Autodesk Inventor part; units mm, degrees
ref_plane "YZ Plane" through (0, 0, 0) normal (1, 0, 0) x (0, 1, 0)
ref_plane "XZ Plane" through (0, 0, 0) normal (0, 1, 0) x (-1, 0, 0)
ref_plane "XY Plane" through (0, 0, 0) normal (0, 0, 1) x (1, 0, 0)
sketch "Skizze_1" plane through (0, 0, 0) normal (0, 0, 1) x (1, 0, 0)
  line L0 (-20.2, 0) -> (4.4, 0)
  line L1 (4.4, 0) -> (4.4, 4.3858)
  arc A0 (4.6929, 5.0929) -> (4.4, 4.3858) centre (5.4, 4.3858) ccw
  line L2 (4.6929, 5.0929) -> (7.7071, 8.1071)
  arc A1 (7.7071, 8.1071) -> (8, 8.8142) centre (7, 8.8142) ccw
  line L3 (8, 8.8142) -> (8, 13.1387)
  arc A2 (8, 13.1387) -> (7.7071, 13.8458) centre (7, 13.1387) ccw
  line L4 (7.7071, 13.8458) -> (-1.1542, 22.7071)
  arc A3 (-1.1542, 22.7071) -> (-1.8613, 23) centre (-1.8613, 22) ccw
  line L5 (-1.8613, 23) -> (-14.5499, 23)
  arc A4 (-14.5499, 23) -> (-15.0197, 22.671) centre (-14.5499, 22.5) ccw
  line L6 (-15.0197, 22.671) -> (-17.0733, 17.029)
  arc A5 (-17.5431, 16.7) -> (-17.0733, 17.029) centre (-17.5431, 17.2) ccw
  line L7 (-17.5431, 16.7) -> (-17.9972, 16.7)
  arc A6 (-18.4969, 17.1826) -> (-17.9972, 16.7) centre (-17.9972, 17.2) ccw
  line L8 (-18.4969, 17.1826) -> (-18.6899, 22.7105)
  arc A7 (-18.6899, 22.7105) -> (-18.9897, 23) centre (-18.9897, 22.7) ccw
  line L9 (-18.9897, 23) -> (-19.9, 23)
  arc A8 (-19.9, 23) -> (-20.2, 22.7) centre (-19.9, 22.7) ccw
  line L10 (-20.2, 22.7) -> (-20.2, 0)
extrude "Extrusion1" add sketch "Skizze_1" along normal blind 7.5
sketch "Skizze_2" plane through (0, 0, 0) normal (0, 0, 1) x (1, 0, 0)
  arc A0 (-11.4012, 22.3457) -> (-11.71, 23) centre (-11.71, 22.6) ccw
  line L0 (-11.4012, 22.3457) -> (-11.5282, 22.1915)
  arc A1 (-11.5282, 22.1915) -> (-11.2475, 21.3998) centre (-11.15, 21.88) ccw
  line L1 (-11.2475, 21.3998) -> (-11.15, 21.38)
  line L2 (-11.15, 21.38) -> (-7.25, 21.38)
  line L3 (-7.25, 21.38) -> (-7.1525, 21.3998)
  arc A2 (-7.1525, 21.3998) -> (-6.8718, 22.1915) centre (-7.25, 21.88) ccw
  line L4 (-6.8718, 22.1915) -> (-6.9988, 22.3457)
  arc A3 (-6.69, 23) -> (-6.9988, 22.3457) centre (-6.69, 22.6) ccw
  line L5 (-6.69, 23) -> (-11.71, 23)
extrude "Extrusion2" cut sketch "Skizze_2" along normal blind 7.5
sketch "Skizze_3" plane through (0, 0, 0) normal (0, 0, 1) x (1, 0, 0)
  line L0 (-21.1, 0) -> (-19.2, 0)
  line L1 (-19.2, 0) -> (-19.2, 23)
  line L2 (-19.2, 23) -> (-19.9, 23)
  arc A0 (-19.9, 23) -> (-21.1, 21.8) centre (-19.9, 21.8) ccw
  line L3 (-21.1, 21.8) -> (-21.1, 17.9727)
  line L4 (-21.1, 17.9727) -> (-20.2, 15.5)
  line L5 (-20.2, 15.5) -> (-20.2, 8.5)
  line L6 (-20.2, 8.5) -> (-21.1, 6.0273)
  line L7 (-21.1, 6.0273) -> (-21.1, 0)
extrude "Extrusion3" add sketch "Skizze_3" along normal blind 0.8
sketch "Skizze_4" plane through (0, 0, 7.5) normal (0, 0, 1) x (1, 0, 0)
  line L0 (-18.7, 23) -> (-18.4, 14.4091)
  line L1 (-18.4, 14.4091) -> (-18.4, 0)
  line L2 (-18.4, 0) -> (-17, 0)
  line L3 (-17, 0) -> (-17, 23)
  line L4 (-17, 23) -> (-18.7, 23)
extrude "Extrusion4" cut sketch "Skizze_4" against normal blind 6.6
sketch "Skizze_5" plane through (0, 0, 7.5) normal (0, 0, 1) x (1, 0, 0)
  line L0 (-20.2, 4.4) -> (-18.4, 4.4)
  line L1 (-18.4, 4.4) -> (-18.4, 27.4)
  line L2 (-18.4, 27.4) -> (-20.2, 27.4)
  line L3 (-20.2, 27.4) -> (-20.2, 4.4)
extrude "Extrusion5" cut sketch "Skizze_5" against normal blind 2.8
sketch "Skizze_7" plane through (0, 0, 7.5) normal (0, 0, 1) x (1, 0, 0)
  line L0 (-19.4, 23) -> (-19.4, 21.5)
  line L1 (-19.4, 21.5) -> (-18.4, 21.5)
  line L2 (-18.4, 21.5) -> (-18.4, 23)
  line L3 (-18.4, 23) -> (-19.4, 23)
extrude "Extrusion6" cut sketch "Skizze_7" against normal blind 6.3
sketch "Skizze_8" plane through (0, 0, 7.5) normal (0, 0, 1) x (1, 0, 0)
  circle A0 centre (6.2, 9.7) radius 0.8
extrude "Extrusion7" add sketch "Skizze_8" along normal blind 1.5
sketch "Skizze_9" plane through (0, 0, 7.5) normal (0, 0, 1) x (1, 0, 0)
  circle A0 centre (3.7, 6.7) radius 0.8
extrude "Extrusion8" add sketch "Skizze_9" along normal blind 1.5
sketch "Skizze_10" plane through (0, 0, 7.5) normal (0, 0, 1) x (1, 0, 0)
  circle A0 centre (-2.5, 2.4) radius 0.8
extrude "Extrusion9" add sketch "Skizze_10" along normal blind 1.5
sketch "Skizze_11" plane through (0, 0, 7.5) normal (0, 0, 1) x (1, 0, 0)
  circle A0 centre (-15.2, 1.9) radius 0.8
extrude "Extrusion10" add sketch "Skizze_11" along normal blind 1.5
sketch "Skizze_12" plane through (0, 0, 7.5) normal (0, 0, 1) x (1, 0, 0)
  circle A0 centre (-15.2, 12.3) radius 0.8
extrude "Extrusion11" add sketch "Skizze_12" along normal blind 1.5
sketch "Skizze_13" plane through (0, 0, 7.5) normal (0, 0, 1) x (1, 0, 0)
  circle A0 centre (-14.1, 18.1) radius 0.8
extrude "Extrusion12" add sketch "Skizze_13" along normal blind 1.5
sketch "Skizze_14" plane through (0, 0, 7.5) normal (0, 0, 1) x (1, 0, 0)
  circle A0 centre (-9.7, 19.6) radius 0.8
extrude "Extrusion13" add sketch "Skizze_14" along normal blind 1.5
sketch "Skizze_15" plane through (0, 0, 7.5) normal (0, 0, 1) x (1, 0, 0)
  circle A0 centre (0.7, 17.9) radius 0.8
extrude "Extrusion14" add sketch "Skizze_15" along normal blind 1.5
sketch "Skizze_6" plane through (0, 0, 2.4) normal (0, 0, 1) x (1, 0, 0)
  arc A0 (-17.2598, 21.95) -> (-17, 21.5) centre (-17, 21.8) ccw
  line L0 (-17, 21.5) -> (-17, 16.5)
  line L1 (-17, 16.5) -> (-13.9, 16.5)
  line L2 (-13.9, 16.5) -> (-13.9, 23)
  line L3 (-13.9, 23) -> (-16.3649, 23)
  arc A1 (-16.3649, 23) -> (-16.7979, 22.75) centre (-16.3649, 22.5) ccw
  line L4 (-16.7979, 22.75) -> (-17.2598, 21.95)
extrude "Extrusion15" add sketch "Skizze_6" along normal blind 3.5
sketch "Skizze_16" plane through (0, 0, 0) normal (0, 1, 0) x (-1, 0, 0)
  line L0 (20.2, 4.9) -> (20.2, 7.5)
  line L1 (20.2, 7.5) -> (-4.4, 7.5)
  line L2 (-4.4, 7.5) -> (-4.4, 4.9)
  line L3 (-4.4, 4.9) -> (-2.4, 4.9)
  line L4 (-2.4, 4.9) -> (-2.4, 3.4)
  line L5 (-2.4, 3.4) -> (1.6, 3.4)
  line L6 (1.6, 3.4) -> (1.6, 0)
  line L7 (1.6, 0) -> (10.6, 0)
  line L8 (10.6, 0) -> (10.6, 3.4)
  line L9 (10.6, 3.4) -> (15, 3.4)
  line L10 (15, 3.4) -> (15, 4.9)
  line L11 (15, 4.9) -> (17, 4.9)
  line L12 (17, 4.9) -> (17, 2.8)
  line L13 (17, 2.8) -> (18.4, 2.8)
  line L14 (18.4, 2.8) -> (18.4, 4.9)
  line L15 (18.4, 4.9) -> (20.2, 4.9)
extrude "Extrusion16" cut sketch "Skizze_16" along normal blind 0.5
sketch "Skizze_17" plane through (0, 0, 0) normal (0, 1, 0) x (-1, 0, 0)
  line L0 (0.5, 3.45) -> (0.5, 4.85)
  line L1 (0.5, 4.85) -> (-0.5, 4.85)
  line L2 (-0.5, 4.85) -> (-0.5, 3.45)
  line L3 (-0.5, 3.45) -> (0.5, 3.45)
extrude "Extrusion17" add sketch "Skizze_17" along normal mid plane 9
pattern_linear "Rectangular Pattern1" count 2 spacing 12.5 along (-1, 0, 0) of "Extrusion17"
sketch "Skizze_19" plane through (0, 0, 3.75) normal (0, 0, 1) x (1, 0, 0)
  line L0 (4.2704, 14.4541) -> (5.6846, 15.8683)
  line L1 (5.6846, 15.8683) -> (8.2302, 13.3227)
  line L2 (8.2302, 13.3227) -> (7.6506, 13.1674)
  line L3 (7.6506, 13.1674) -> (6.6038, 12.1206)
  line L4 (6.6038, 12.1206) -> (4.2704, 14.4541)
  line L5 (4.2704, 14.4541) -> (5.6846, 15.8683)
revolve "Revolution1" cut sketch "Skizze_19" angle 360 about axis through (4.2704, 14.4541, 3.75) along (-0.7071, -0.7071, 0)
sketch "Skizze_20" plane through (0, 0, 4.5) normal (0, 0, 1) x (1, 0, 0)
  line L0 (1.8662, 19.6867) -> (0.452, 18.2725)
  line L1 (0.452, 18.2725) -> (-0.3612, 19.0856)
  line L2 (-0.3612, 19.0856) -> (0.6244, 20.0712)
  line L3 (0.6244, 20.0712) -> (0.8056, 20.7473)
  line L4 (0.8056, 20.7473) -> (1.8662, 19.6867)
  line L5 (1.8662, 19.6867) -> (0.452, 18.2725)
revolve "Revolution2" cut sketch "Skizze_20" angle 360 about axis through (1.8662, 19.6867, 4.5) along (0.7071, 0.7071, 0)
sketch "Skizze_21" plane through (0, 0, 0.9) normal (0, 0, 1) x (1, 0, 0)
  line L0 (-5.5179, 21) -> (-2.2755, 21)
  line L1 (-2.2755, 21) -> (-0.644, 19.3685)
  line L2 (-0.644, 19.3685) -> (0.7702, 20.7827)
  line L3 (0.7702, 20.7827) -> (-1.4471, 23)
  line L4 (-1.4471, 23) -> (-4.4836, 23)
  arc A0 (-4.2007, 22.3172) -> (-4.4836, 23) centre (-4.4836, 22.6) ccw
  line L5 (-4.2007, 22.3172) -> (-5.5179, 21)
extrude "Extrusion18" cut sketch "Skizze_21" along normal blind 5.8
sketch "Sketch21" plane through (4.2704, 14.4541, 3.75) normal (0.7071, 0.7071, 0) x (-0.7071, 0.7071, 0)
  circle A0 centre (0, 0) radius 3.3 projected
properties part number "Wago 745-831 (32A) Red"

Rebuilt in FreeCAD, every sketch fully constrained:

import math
import FreeCAD as App
import Part
import Sketcher
from FreeCAD import Vector
Q = App.Units.Quantity


def add_polygon(sketch, points):
    """Adds a closed chain of lines whose ends are joined by coincident constraints."""
    first, n = sketch.GeometryCount, len(points)
    for a, b in zip(points, points[1:] + points[:1]):
        sketch.addGeometry(Part.LineSegment(App.Vector(*a, 0), App.Vector(*b, 0)), False)
    for i in range(n):
        sketch.addConstraint(Sketcher.Constraint("Coincident", first + i, 2, first + (i + 1) % n, 1))

doc = App.newDocument("Part")
body = doc.addObject("PartDesign::Body", "Body")

# Sketch on XY plane
sketch1 = doc.addObject("Sketcher::SketchObject", "Sketch")
body.addObject(sketch1)
sketch1.AttachmentSupport = (doc.XY_Plane, [""])
sketch1.MapMode = "FlatFace"
sketch1.addGeometry(Part.LineSegment(Vector(-20.2, 22.7, 0), Vector(-20.2, 0, 0)), False)
sketch1.addGeometry(Part.LineSegment(Vector(-20.2, 0, 0), Vector(4.4, 0, 0)), False)
sketch1.addGeometry(Part.LineSegment(Vector(4.4, 0, 0), Vector(4.4, 4.39, 0)), False)
sketch1.addGeometry(Part.ArcOfCircle(Part.Circle(Vector(5.4, 4.39, 0), Vector(0, 0, 1), 1), math.radians(135), math.radians(180)), False)
sketch1.addGeometry(Part.LineSegment(Vector(4.69, 5.09, 0), Vector(7.71, 8.11, 0)), False)
sketch1.addGeometry(Part.ArcOfCircle(Part.Circle(Vector(7, 8.81, 0), Vector(0, 0, 1), 1), math.radians(-45), math.radians(0)), False)
sketch1.addGeometry(Part.LineSegment(Vector(8, 8.81, 0), Vector(8, 13.14, 0)), False)
sketch1.addGeometry(Part.ArcOfCircle(Part.Circle(Vector(7, 13.14, 0), Vector(0, 0, 1), 1), math.radians(0), math.radians(45)), False)
sketch1.addGeometry(Part.LineSegment(Vector(7.71, 13.85, 0), Vector(-1.15, 22.71, 0)), False)
sketch1.addGeometry(Part.ArcOfCircle(Part.Circle(Vector(-1.86, 22, 0), Vector(0, 0, 1), 1), math.radians(45), math.radians(90)), False)
sketch1.addGeometry(Part.LineSegment(Vector(-1.86, 23, 0), Vector(-14.55, 23, 0)), False)
sketch1.addGeometry(Part.ArcOfCircle(Part.Circle(Vector(-14.55, 22.5, 0), Vector(0, 0, 1), 0.5), math.radians(90), math.radians(160)), False)
sketch1.addGeometry(Part.LineSegment(Vector(-15.02, 22.67, 0), Vector(-17.07, 17.03, 0)), False)
sketch1.addGeometry(Part.ArcOfCircle(Part.Circle(Vector(-17.54, 17.2, 0), Vector(0, 0, 1), 0.5), math.radians(-90), math.radians(-20)), False)
sketch1.addGeometry(Part.LineSegment(Vector(-17.54, 16.7, 0), Vector(-18, 16.7, 0)), False)
sketch1.addGeometry(Part.ArcOfCircle(Part.Circle(Vector(-18, 17.2, 0), Vector(0, 0, 1), 0.5), math.radians(-178), math.radians(-90)), False)
sketch1.addGeometry(Part.LineSegment(Vector(-18.5, 17.18, 0), Vector(-18.69, 22.71, 0)), False)
sketch1.addGeometry(Part.ArcOfCircle(Part.Circle(Vector(-18.99, 22.7, 0), Vector(0, 0, 1), 0.3), math.radians(2), math.radians(90)), False)
sketch1.addGeometry(Part.LineSegment(Vector(-18.99, 23, 0), Vector(-19.9, 23, 0)), False)
sketch1.addGeometry(Part.ArcOfCircle(Part.Circle(Vector(-19.9, 22.7, 0), Vector(0, 0, 1), 0.3), math.radians(90), math.radians(180)), False)
sketch1.addConstraint(Sketcher.Constraint("Coincident", 0, 2, 1, 1))
sketch1.addConstraint(Sketcher.Constraint("Coincident", 1, 2, 2, 1))
sketch1.addConstraint(Sketcher.Constraint("Tangent", 2, 2, 3, 2))
sketch1.addConstraint(Sketcher.Constraint("Tangent", 3, 1, 4, 1))
sketch1.addConstraint(Sketcher.Constraint("Tangent", 4, 2, 5, 1))
sketch1.addConstraint(Sketcher.Constraint("Tangent", 5, 2, 6, 1))
sketch1.addConstraint(Sketcher.Constraint("Tangent", 6, 2, 7, 1))
sketch1.addConstraint(Sketcher.Constraint("Tangent", 7, 2, 8, 1))
sketch1.addConstraint(Sketcher.Constraint("Tangent", 8, 2, 9, 1))
sketch1.addConstraint(Sketcher.Constraint("Tangent", 9, 2, 10, 1))
sketch1.addConstraint(Sketcher.Constraint("Tangent", 10, 2, 11, 1))
sketch1.addConstraint(Sketcher.Constraint("Tangent", 11, 2, 12, 1))
sketch1.addConstraint(Sketcher.Constraint("Tangent", 12, 2, 13, 2))
sketch1.addConstraint(Sketcher.Constraint("Tangent", 13, 1, 14, 1))
sketch1.addConstraint(Sketcher.Constraint("Tangent", 14, 2, 15, 2))
sketch1.addConstraint(Sketcher.Constraint("Tangent", 15, 1, 16, 1))
sketch1.addConstraint(Sketcher.Constraint("Tangent", 16, 2, 17, 1))
sketch1.addConstraint(Sketcher.Constraint("Tangent", 17, 2, 18, 1))
sketch1.addConstraint(Sketcher.Constraint("Tangent", 18, 2, 19, 1))
sketch1.addConstraint(Sketcher.Constraint("Tangent", 19, 2, 0, 1))
sketch1.addConstraint(Sketcher.Constraint("Vertical", 0))
sketch1.addConstraint(Sketcher.Constraint("Horizontal", 1))
sketch1.addConstraint(Sketcher.Constraint("Vertical", 2))
sketch1.addConstraint(Sketcher.Constraint("Vertical", 6))
sketch1.addConstraint(Sketcher.Constraint("Horizontal", 10))
sketch1.addConstraint(Sketcher.Constraint("Horizontal", 14))
sketch1.addConstraint(Sketcher.Constraint("Horizontal", 18))
sketch1.addConstraint(Sketcher.Constraint("Equal", 3, 5))
sketch1.addConstraint(Sketcher.Constraint("Equal", 5, 7))
sketch1.addConstraint(Sketcher.Constraint("Equal", 7, 9))
sketch1.addConstraint(Sketcher.Constraint("Equal", 11, 13))
sketch1.addConstraint(Sketcher.Constraint("Equal", 13, 15))
sketch1.addConstraint(Sketcher.Constraint("Equal", 17, 19))
sketch1.addConstraint(Sketcher.Constraint("PointOnObject", 0, 2, -1))
sketch1.addConstraint(Sketcher.Constraint("Perpendicular", 4, 8))
sketch1.addConstraint(Sketcher.Constraint("Horizontal", 10, 2, 17, 2))
sketch1.addConstraint(Sketcher.Constraint("Vertical", 4, 2, 7, 2))
sketch1.addConstraint(Sketcher.Constraint("Radius", 3, 1.0))
sketch1.addConstraint(Sketcher.Constraint("Radius", 11, 0.5))
sketch1.addConstraint(Sketcher.Constraint("Radius", 17, 0.3))
sketch1.addConstraint(Sketcher.Constraint("Angle", 12, Q("-110.0007 deg")))
sketch1.addConstraint(Sketcher.Constraint("Angle", 16, Q("91.9996 deg")))
sketch1.addConstraint(Sketcher.Constraint("DistanceX", 1, 1, 1, 2, 24.6))
sketch1.addConstraint(Sketcher.Constraint("DistanceY", 0, 2, 0, 1, 22.7))
sketch1.addConstraint(Sketcher.Constraint("DistanceX", -1, 1, 5, 3, 7.0))
sketch1.addConstraint(Sketcher.Constraint("DistanceY", 13, 1, 17, 3, 6.0))
sketch1.addConstraint(Sketcher.Constraint("DistanceX", -1, 1, 3, 3, 5.4))
sketch1.addConstraint(Sketcher.Constraint("DistanceX", 14, 2, 14, 1, 0.454))
sketch1.addConstraint(Sketcher.Constraint("DistanceX", 11, 3, -1, 1, 14.55))
sketch1.addConstraint(Sketcher.Constraint("DistanceX", 10, 2, 10, 1, 12.6886))
sketch1.addConstraint(Sketcher.Constraint("DistanceY", 2, 1, 2, 2, 4.3858))
pad1 = doc.addObject("PartDesign::Pad", "Pad")
body.addObject(pad1)
pad1.Profile = sketch1
pad1.Length = 7.5

# Sketch on XY plane
sketch2 = doc.addObject("Sketcher::SketchObject", "Sketch001")
body.addObject(sketch2)
sketch2.AttachmentSupport = (doc.XY_Plane, [""])
sketch2.MapMode = "FlatFace"
sketch2.addGeometry(Part.ArcOfCircle(Part.Circle(Vector(-11.71, 22.6, 0), Vector(0, 0, 1), 0.4), math.radians(-39), math.radians(90)), False)
sketch2.addGeometry(Part.LineSegment(Vector(-11.4, 22.35, 0), Vector(-11.53, 22.19, 0)), False)
sketch2.addGeometry(Part.ArcOfCircle(Part.Circle(Vector(-11.15, 21.88, 0), Vector(0, 0, 1), 0.49), math.radians(141), math.radians(259)), False)
sketch2.addGeometry(Part.LineSegment(Vector(-11.25, 21.4, 0), Vector(-11.15, 21.38, 0)), False)
sketch2.addGeometry(Part.LineSegment(Vector(-11.15, 21.38, 0), Vector(-7.25, 21.38, 0)), False)
sketch2.addGeometry(Part.LineSegment(Vector(-7.25, 21.38, 0), Vector(-7.15, 21.4, 0)), False)
sketch2.addGeometry(Part.ArcOfCircle(Part.Circle(Vector(-7.25, 21.88, 0), Vector(0, 0, 1), 0.49), math.radians(-79), math.radians(39)), False)
sketch2.addGeometry(Part.LineSegment(Vector(-6.87, 22.19, 0), Vector(-7, 22.35, 0)), False)
sketch2.addGeometry(Part.ArcOfCircle(Part.Circle(Vector(-6.69, 22.6, 0), Vector(0, 0, 1), 0.4), math.radians(90), math.radians(219)), False)
sketch2.addGeometry(Part.LineSegment(Vector(-6.69, 23, 0), Vector(-11.71, 23, 0)), False)
sketch2.addConstraint(Sketcher.Constraint("Tangent", 0, 1, 1, 1))
sketch2.addConstraint(Sketcher.Constraint("Tangent", 1, 2, 2, 1))
sketch2.addConstraint(Sketcher.Constraint("Tangent", 2, 2, 3, 1))
sketch2.addConstraint(Sketcher.Constraint("Coincident", 3, 2, 4, 1))
sketch2.addConstraint(Sketcher.Constraint("Coincident", 4, 2, 5, 1))
sketch2.addConstraint(Sketcher.Constraint("Tangent", 5, 2, 6, 1))
sketch2.addConstraint(Sketcher.Constraint("Tangent", 6, 2, 7, 1))
sketch2.addConstraint(Sketcher.Constraint("Tangent", 7, 2, 8, 2))
sketch2.addConstraint(Sketcher.Constraint("Tangent", 8, 1, 9, 1))
sketch2.addConstraint(Sketcher.Constraint("Tangent", 9, 2, 0, 2))
sketch2.addConstraint(Sketcher.Constraint("Horizontal", 4))
sketch2.addConstraint(Sketcher.Constraint("Horizontal", 9))
sketch2.addConstraint(Sketcher.Constraint("Equal", 2, 6))
sketch2.addConstraint(Sketcher.Constraint("Equal", 0, 8))
sketch2.addConstraint(Sketcher.Constraint("Horizontal", 2, 3, 6, 3))
sketch2.addConstraint(Sketcher.Constraint("Horizontal", 2, 2, 5, 2))
sketch2.addConstraint(Sketcher.Constraint("Horizontal", 1, 2, 6, 2))
sketch2.addConstraint(Sketcher.Constraint("Vertical", 2, 3, 3, 2))
sketch2.addConstraint(Sketcher.Constraint("Radius", 0, 0.4))
sketch2.addConstraint(Sketcher.Constraint("Radius", 2, 0.49))
sketch2.addConstraint(Sketcher.Constraint("DistanceX", 4, 1, 4, 2, 3.9))
sketch2.addConstraint(Sketcher.Constraint("DistanceY", -1, 1, 8, 1, 23.0))
sketch2.addConstraint(Sketcher.Constraint("DistanceX", 9, 2, 9, 1, 5.02))
sketch2.addConstraint(Sketcher.Constraint("Angle", 3, Q("-11.4793 deg")))
sketch2.addConstraint(Sketcher.Constraint("DistanceX", 0, 3, -1, 1, 11.71))
sketch2.addConstraint(Sketcher.Constraint("DistanceY", -1, 1, 2, 3, 21.88))
pocket1 = doc.addObject("PartDesign::Pocket", "Pocket")
body.addObject(pocket1)
pocket1.Profile = sketch2
pocket1.Length = 7.5
pocket1.Reversed = True

# Sketch on XY plane
sketch3 = doc.addObject("Sketcher::SketchObject", "Sketch002")
body.addObject(sketch3)
sketch3.AttachmentSupport = (doc.XY_Plane, [""])
sketch3.MapMode = "FlatFace"
sketch3.addGeometry(Part.LineSegment(Vector(-21.1, 6, 0), Vector(-21.1, 0, 0)), False)
sketch3.addGeometry(Part.LineSegment(Vector(-21.1, 0, 0), Vector(-19.2, 0, 0)), False)
sketch3.addGeometry(Part.LineSegment(Vector(-19.2, 0, 0), Vector(-19.2, 23, 0)), False)
sketch3.addGeometry(Part.LineSegment(Vector(-19.2, 23, 0), Vector(-19.9, 23, 0)), False)
sketch3.addGeometry(Part.ArcOfCircle(Part.Circle(Vector(-19.9, 21.8, 0), Vector(0, 0, 1), 1.2), math.radians(90), math.radians(180)), False)
sketch3.addGeometry(Part.LineSegment(Vector(-21.1, 21.8, 0), Vector(-21.1, 18, 0)), False)
sketch3.addGeometry(Part.LineSegment(Vector(-21.1, 18, 0), Vector(-20.2, 15.5, 0)), False)
sketch3.addGeometry(Part.LineSegment(Vector(-20.2, 15.5, 0), Vector(-20.2, 8.5, 0)), False)
sketch3.addGeometry(Part.LineSegment(Vector(-20.2, 8.5, 0), Vector(-21.1, 6, 0)), False)
sketch3.addConstraint(Sketcher.Constraint("Coincident", 0, 2, 1, 1))
sketch3.addConstraint(Sketcher.Constraint("Coincident", 1, 2, 2, 1))
sketch3.addConstraint(Sketcher.Constraint("Coincident", 2, 2, 3, 1))
sketch3.addConstraint(Sketcher.Constraint("Tangent", 3, 2, 4, 1))
sketch3.addConstraint(Sketcher.Constraint("Tangent", 4, 2, 5, 1))
sketch3.addConstraint(Sketcher.Constraint("Coincident", 5, 2, 6, 1))
sketch3.addConstraint(Sketcher.Constraint("Coincident", 6, 2, 7, 1))
sketch3.addConstraint(Sketcher.Constraint("Coincident", 7, 2, 8, 1))
sketch3.addConstraint(Sketcher.Constraint("Coincident", 8, 2, 0, 1))
sketch3.addConstraint(Sketcher.Constraint("Vertical", 0))
sketch3.addConstraint(Sketcher.Constraint("Horizontal", 1))
sketch3.addConstraint(Sketcher.Constraint("Vertical", 2))
sketch3.addConstraint(Sketcher.Constraint("Horizontal", 3))
sketch3.addConstraint(Sketcher.Constraint("Vertical", 5))
sketch3.addConstraint(Sketcher.Constraint("Vertical", 7))
sketch3.addConstraint(Sketcher.Constraint("PointOnObject", 0, 2, -1))
sketch3.addConstraint(Sketcher.Constraint("Vertical", 0, 2, 4, 2))
sketch3.addConstraint(Sketcher.Constraint("Equal", 6, 8))
sketch3.addConstraint(Sketcher.Constraint("Radius", 4, 1.2))
sketch3.addConstraint(Sketcher.Constraint("DistanceY", 2, 1, 2, 2, 23.0))
sketch3.addConstraint(Sketcher.Constraint("DistanceY", 7, 2, 7, 1, 7.0))
sketch3.addConstraint(Sketcher.Constraint("Angle", 6, Q("-69.9998 deg")))
sketch3.addConstraint(Sketcher.Constraint("DistanceX", 1, 1, 1, 2, 1.9))
sketch3.addConstraint(Sketcher.Constraint("DistanceX", 6, 2, 2, 2, 1.0))
sketch3.addConstraint(Sketcher.Constraint("DistanceX", 4, 3, -1, 1, 19.9))
sketch3.addConstraint(Sketcher.Constraint("DistanceY", -1, 1, 6, 2, 15.5))
pad2 = doc.addObject("PartDesign::Pad", "Pad001")
body.addObject(pad2)
pad2.Profile = sketch3
pad2.Length = 0.8

# Sketch on XY plane
sketch4 = doc.addObject("Sketcher::SketchObject", "Sketch003")
body.addObject(sketch4)
sketch4.AttachmentSupport = (doc.XY_Plane, [""])
sketch4.MapMode = "FlatFace"
sketch4.AttachmentOffset = App.Placement(Vector(0, 0, 7.5), App.Rotation())
add_polygon(sketch4, [(-17, 23), (-18.7, 23), (-18.4, 14.4), (-18.4, 0), (-17, 0)])  # lines 0-4
sketch4.addConstraint(Sketcher.Constraint("Horizontal", 0))
sketch4.addConstraint(Sketcher.Constraint("Vertical", 2))
sketch4.addConstraint(Sketcher.Constraint("Horizontal", 3))
sketch4.addConstraint(Sketcher.Constraint("Vertical", 4))
sketch4.addConstraint(Sketcher.Constraint("PointOnObject", 2, 2, -1))
sketch4.addConstraint(Sketcher.Constraint("DistanceY", 4, 1, 4, 2, 23.0))
sketch4.addConstraint(Sketcher.Constraint("Angle", 1, Q("-88 deg")))
sketch4.addConstraint(Sketcher.Constraint("DistanceX", 0, 2, 0, 1, 1.7))
sketch4.addConstraint(Sketcher.Constraint("DistanceX", 3, 1, 3, 2, 1.4))
sketch4.addConstraint(Sketcher.Constraint("DistanceX", 3, 2, -1, 1, 17.0))
pocket2 = doc.addObject("PartDesign::Pocket", "Pocket001")
body.addObject(pocket2)
pocket2.Profile = sketch4
pocket2.Length = 6.6

# Sketch on XY plane
sketch5 = doc.addObject("Sketcher::SketchObject", "Sketch004")
body.addObject(sketch5)
sketch5.AttachmentSupport = (doc.XY_Plane, [""])
sketch5.MapMode = "FlatFace"
sketch5.AttachmentOffset = App.Placement(Vector(0, 0, 7.5), App.Rotation())
add_polygon(sketch5, [(-20.2, 27.4), (-20.2, 4.4), (-18.4, 4.4), (-18.4, 27.4)])  # lines 0-3
sketch5.addConstraint(Sketcher.Constraint("Vertical", 0))
sketch5.addConstraint(Sketcher.Constraint("Horizontal", 1))
sketch5.addConstraint(Sketcher.Constraint("Vertical", 2))
sketch5.addConstraint(Sketcher.Constraint("Horizontal", 3))
sketch5.addConstraint(Sketcher.Constraint("DistanceY", 0, 2, 0, 1, 23.0))
sketch5.addConstraint(Sketcher.Constraint("DistanceX", 1, 1, 1, 2, 1.8))
sketch5.addConstraint(Sketcher.Constraint("DistanceX", 0, 2, -1, 1, 20.2))
sketch5.addConstraint(Sketcher.Constraint("DistanceY", -1, 1, 0, 2, 4.4))
pocket3 = doc.addObject("PartDesign::Pocket", "Pocket002")
body.addObject(pocket3)
pocket3.Profile = sketch5
pocket3.Length = 2.8

# Sketch on XY plane
sketch6 = doc.addObject("Sketcher::SketchObject", "Sketch005")
body.addObject(sketch6)
sketch6.AttachmentSupport = (doc.XY_Plane, [""])
sketch6.MapMode = "FlatFace"
sketch6.AttachmentOffset = App.Placement(Vector(0, 0, 7.5), App.Rotation())
add_polygon(sketch6, [(-18.4, 23), (-19.4, 23), (-19.4, 21.5), (-18.4, 21.5)])  # lines 0-3
sketch6.addConstraint(Sketcher.Constraint("Horizontal", 0))
sketch6.addConstraint(Sketcher.Constraint("Vertical", 1))
sketch6.addConstraint(Sketcher.Constraint("Horizontal", 2))
sketch6.addConstraint(Sketcher.Constraint("Vertical", 3))
sketch6.addConstraint(Sketcher.Constraint("DistanceX", 0, 2, 0, 1, 1.0))
sketch6.addConstraint(Sketcher.Constraint("DistanceY", 1, 2, 1, 1, 1.5))
sketch6.addConstraint(Sketcher.Constraint("DistanceY", -1, 1, 0, 2, 23.0))
sketch6.addConstraint(Sketcher.Constraint("DistanceX", 0, 2, -1, 1, 19.4))
pocket4 = doc.addObject("PartDesign::Pocket", "Pocket003")
body.addObject(pocket4)
pocket4.Profile = sketch6
pocket4.Length = 6.3

# Sketch on XY plane
sketch7 = doc.addObject("Sketcher::SketchObject", "Sketch006")
body.addObject(sketch7)
sketch7.AttachmentSupport = (doc.XY_Plane, [""])
sketch7.MapMode = "FlatFace"
sketch7.AttachmentOffset = App.Placement(Vector(0, 0, 7.5), App.Rotation())
sketch7.addGeometry(Part.Circle(Vector(6.2, 9.7, 0), Vector(0, 0, 1), 0.8), False)
sketch7.addConstraint(Sketcher.Constraint("Diameter", 0, 1.6))
sketch7.addConstraint(Sketcher.Constraint("DistanceX", -1, 1, 0, 3, 6.2))
sketch7.addConstraint(Sketcher.Constraint("DistanceY", -1, 1, 0, 3, 9.7))
pad3 = doc.addObject("PartDesign::Pad", "Pad002")
body.addObject(pad3)
pad3.Profile = sketch7
pad3.Length = 1.5

# Sketch on XY plane
sketch8 = doc.addObject("Sketcher::SketchObject", "Sketch007")
body.addObject(sketch8)
sketch8.AttachmentSupport = (doc.XY_Plane, [""])
sketch8.MapMode = "FlatFace"
sketch8.AttachmentOffset = App.Placement(Vector(0, 0, 7.5), App.Rotation())
sketch8.addGeometry(Part.Circle(Vector(3.7, 6.7, 0), Vector(0, 0, 1), 0.8), False)
sketch8.addConstraint(Sketcher.Constraint("Diameter", 0, 1.6))
sketch8.addConstraint(Sketcher.Constraint("DistanceX", -1, 1, 0, 3, 3.7))
sketch8.addConstraint(Sketcher.Constraint("DistanceY", -1, 1, 0, 3, 6.7))
pad4 = doc.addObject("PartDesign::Pad", "Pad003")
body.addObject(pad4)
pad4.Profile = sketch8
pad4.Length = 1.5

# Sketch on XY plane
sketch9 = doc.addObject("Sketcher::SketchObject", "Sketch008")
body.addObject(sketch9)
sketch9.AttachmentSupport = (doc.XY_Plane, [""])
sketch9.MapMode = "FlatFace"
sketch9.AttachmentOffset = App.Placement(Vector(0, 0, 7.5), App.Rotation())
sketch9.addGeometry(Part.Circle(Vector(-2.5, 2.4, 0), Vector(0, 0, 1), 0.8), False)
sketch9.addConstraint(Sketcher.Constraint("Diameter", 0, 1.6))
sketch9.addConstraint(Sketcher.Constraint("DistanceX", 0, 3, -1, 1, 2.5))
sketch9.addConstraint(Sketcher.Constraint("DistanceY", -1, 1, 0, 3, 2.4))
pad5 = doc.addObject("PartDesign::Pad", "Pad004")
body.addObject(pad5)
pad5.Profile = sketch9
pad5.Length = 1.5

# Sketch on XY plane
sketch10 = doc.addObject("Sketcher::SketchObject", "Sketch009")
body.addObject(sketch10)
sketch10.AttachmentSupport = (doc.XY_Plane, [""])
sketch10.MapMode = "FlatFace"
sketch10.AttachmentOffset = App.Placement(Vector(0, 0, 7.5), App.Rotation())
sketch10.addGeometry(Part.Circle(Vector(-15.2, 1.9, 0), Vector(0, 0, 1), 0.8), False)
sketch10.addConstraint(Sketcher.Constraint("Diameter", 0, 1.6))
sketch10.addConstraint(Sketcher.Constraint("DistanceX", 0, 3, -1, 1, 15.2))
sketch10.addConstraint(Sketcher.Constraint("DistanceY", -1, 1, 0, 3, 1.9))
pad6 = doc.addObject("PartDesign::Pad", "Pad005")
body.addObject(pad6)
pad6.Profile = sketch10
pad6.Length = 1.5

# Sketch on XY plane
sketch11 = doc.addObject("Sketcher::SketchObject", "Sketch010")
body.addObject(sketch11)
sketch11.AttachmentSupport = (doc.XY_Plane, [""])
sketch11.MapMode = "FlatFace"
sketch11.AttachmentOffset = App.Placement(Vector(0, 0, 7.5), App.Rotation())
sketch11.addGeometry(Part.Circle(Vector(-15.2, 12.3, 0), Vector(0, 0, 1), 0.8), False)
sketch11.addConstraint(Sketcher.Constraint("Diameter", 0, 1.6))
sketch11.addConstraint(Sketcher.Constraint("DistanceX", 0, 3, -1, 1, 15.2))
sketch11.addConstraint(Sketcher.Constraint("DistanceY", -1, 1, 0, 3, 12.3))
pad7 = doc.addObject("PartDesign::Pad", "Pad006")
body.addObject(pad7)
pad7.Profile = sketch11
pad7.Length = 1.5

# Sketch on XY plane
sketch12 = doc.addObject("Sketcher::SketchObject", "Sketch011")
body.addObject(sketch12)
sketch12.AttachmentSupport = (doc.XY_Plane, [""])
sketch12.MapMode = "FlatFace"
sketch12.AttachmentOffset = App.Placement(Vector(0, 0, 7.5), App.Rotation())
sketch12.addGeometry(Part.Circle(Vector(-14.1, 18.1, 0), Vector(0, 0, 1), 0.8), False)
sketch12.addConstraint(Sketcher.Constraint("Diameter", 0, 1.6))
sketch12.addConstraint(Sketcher.Constraint("DistanceX", 0, 3, -1, 1, 14.1))
sketch12.addConstraint(Sketcher.Constraint("DistanceY", -1, 1, 0, 3, 18.1))
pad8 = doc.addObject("PartDesign::Pad", "Pad007")
body.addObject(pad8)
pad8.Profile = sketch12
pad8.Length = 1.5

# Sketch on XY plane
sketch13 = doc.addObject("Sketcher::SketchObject", "Sketch012")
body.addObject(sketch13)
sketch13.AttachmentSupport = (doc.XY_Plane, [""])
sketch13.MapMode = "FlatFace"
sketch13.AttachmentOffset = App.Placement(Vector(0, 0, 7.5), App.Rotation())
sketch13.addGeometry(Part.Circle(Vector(-9.7, 19.6, 0), Vector(0, 0, 1), 0.8), False)
sketch13.addConstraint(Sketcher.Constraint("Diameter", 0, 1.6))
sketch13.addConstraint(Sketcher.Constraint("DistanceX", 0, 3, -1, 1, 9.7))
sketch13.addConstraint(Sketcher.Constraint("DistanceY", -1, 1, 0, 3, 19.6))
pad9 = doc.addObject("PartDesign::Pad", "Pad008")
body.addObject(pad9)
pad9.Profile = sketch13
pad9.Length = 1.5

# Sketch on XY plane
sketch14 = doc.addObject("Sketcher::SketchObject", "Sketch013")
body.addObject(sketch14)
sketch14.AttachmentSupport = (doc.XY_Plane, [""])
sketch14.MapMode = "FlatFace"
sketch14.AttachmentOffset = App.Placement(Vector(0, 0, 7.5), App.Rotation())
sketch14.addGeometry(Part.Circle(Vector(0.7, 17.9, 0), Vector(0, 0, 1), 0.8), False)
sketch14.addConstraint(Sketcher.Constraint("Diameter", 0, 1.6))
sketch14.addConstraint(Sketcher.Constraint("DistanceX", -1, 1, 0, 3, 0.7))
sketch14.addConstraint(Sketcher.Constraint("DistanceY", -1, 1, 0, 3, 17.9))
pad10 = doc.addObject("PartDesign::Pad", "Pad009")
body.addObject(pad10)
pad10.Profile = sketch14
pad10.Length = 1.5

# Sketch on XY plane
sketch15 = doc.addObject("Sketcher::SketchObject", "Sketch014")
body.addObject(sketch15)
sketch15.AttachmentSupport = (doc.XY_Plane, [""])
sketch15.MapMode = "FlatFace"
sketch15.AttachmentOffset = App.Placement(Vector(0, 0, 2.4), App.Rotation())
sketch15.addGeometry(Part.LineSegment(Vector(-16.8, 22.75, 0), Vector(-17.26, 21.95, 0)), False)
sketch15.addGeometry(Part.ArcOfCircle(Part.Circle(Vector(-17, 21.8, 0), Vector(0, 0, 1), 0.3), math.radians(150), math.radians(270)), False)
sketch15.addGeometry(Part.LineSegment(Vector(-17, 21.5, 0), Vector(-17, 16.5, 0)), False)
sketch15.addGeometry(Part.LineSegment(Vector(-17, 16.5, 0), Vector(-13.9, 16.5, 0)), False)
sketch15.addGeometry(Part.LineSegment(Vector(-13.9, 16.5, 0), Vector(-13.9, 23, 0)), False)
sketch15.addGeometry(Part.LineSegment(Vector(-13.9, 23, 0), Vector(-16.36, 23, 0)), False)
sketch15.addGeometry(Part.ArcOfCircle(Part.Circle(Vector(-16.36, 22.5, 0), Vector(0, 0, 1), 0.5), math.radians(90), math.radians(150)), False)
sketch15.addConstraint(Sketcher.Constraint("Tangent", 0, 2, 1, 1))
sketch15.addConstraint(Sketcher.Constraint("Coincident", 1, 2, 2, 1))
sketch15.addConstraint(Sketcher.Constraint("Coincident", 2, 2, 3, 1))
sketch15.addConstraint(Sketcher.Constraint("Coincident", 3, 2, 4, 1))
sketch15.addConstraint(Sketcher.Constraint("Coincident", 4, 2, 5, 1))
sketch15.addConstraint(Sketcher.Constraint("Tangent", 5, 2, 6, 1))
sketch15.addConstraint(Sketcher.Constraint("Tangent", 6, 2, 0, 1))
sketch15.addConstraint(Sketcher.Constraint("Vertical", 2))
sketch15.addConstraint(Sketcher.Constraint("Horizontal", 3))
sketch15.addConstraint(Sketcher.Constraint("Vertical", 4))
sketch15.addConstraint(Sketcher.Constraint("Horizontal", 5))
sketch15.addConstraint(Sketcher.Constraint("Radius", 1, 0.3))
sketch15.addConstraint(Sketcher.Constraint("Radius", 6, 0.5))
sketch15.addConstraint(Sketcher.Constraint("DistanceY", 2, 2, 2, 1, 5.0))
sketch15.addConstraint(Sketcher.Constraint("Angle", 0, Q("-120.001 deg")))
sketch15.addConstraint(Sketcher.Constraint("DistanceX", 3, 1, 3, 2, 3.1))
sketch15.addConstraint(Sketcher.Constraint("DistanceY", 4, 1, 4, 2, 6.5))
sketch15.addConstraint(Sketcher.Constraint("DistanceX", 1, 3, -1, 1, 17.0))
sketch15.addConstraint(Sketcher.Constraint("DistanceX", 1, 2, -1, 1, 17.0))
sketch15.addConstraint(Sketcher.Constraint("DistanceY", -1, 1, 4, 2, 23.0))
pad11 = doc.addObject("PartDesign::Pad", "Pad010")
body.addObject(pad11)
pad11.Profile = sketch15
pad11.Length = 3.5

# Sketch on XZ plane
sketch16 = doc.addObject("Sketcher::SketchObject", "Sketch015")
body.addObject(sketch16)
sketch16.AttachmentSupport = (doc.XZ_Plane, [""])
sketch16.MapMode = "FlatFace"
add_polygon(sketch16, [(-18.4, 4.9), (-20.2, 4.9), (-20.2, 7.5), (4.4, 7.5), (4.4, 4.9), (2.4, 4.9), (2.4, 3.4), (-1.6, 3.4), (-1.6, 0), (-10.6, 0), (-10.6, 3.4), (-15, 3.4), (-15, 4.9), (-17, 4.9), (-17, 2.8), (-18.4, 2.8)])  # lines 0-15
sketch16.addConstraint(Sketcher.Constraint("Horizontal", 0))
sketch16.addConstraint(Sketcher.Constraint("Vertical", 1))
sketch16.addConstraint(Sketcher.Constraint("Horizontal", 2))
sketch16.addConstraint(Sketcher.Constraint("Vertical", 3))
sketch16.addConstraint(Sketcher.Constraint("Horizontal", 4))
sketch16.addConstraint(Sketcher.Constraint("Vertical", 5))
sketch16.addConstraint(Sketcher.Constraint("Horizontal", 6))
sketch16.addConstraint(Sketcher.Constraint("Vertical", 7))
sketch16.addConstraint(Sketcher.Constraint("Horizontal", 8))
sketch16.addConstraint(Sketcher.Constraint("Vertical", 9))
sketch16.addConstraint(Sketcher.Constraint("Horizontal", 10))
sketch16.addConstraint(Sketcher.Constraint("Vertical", 11))
sketch16.addConstraint(Sketcher.Constraint("Horizontal", 12))
sketch16.addConstraint(Sketcher.Constraint("Vertical", 13))
sketch16.addConstraint(Sketcher.Constraint("Horizontal", 14))
sketch16.addConstraint(Sketcher.Constraint("Vertical", 15))
sketch16.addConstraint(Sketcher.Constraint("PointOnObject", 7, 2, -1))
sketch16.addConstraint(Sketcher.Constraint("Horizontal", 0, 2, 3, 2))
sketch16.addConstraint(Sketcher.Constraint("Horizontal", 6, 2, 9, 2))
sketch16.addConstraint(Sketcher.Constraint("Horizontal", 4, 2, 11, 2))
sketch16.addConstraint(Sketcher.Constraint("Equal", 4, 12))
sketch16.addConstraint(Sketcher.Constraint("DistanceX", 4, 2, 4, 1, 2.0))
sketch16.addConstraint(Sketcher.Constraint("DistanceX", 6, 2, 6, 1, 4.0))
sketch16.addConstraint(Sketcher.Constraint("DistanceX", 8, 2, 8, 1, 9.0))
sketch16.addConstraint(Sketcher.Constraint("DistanceX", 0, 2, 0, 1, 1.8))
sketch16.addConstraint(Sketcher.Constraint("DistanceX", 2, 1, 2, 2, 24.6))
sketch16.addConstraint(Sketcher.Constraint("DistanceX", 10, 2, 10, 1, 4.4))
sketch16.addConstraint(Sketcher.Constraint("DistanceY", 1, 1, 1, 2, 2.6))
sketch16.addConstraint(Sketcher.Constraint("DistanceY", 5, 2, 5, 1, 1.5))
sketch16.addConstraint(Sketcher.Constraint("DistanceY", 7, 2, 7, 1, 3.4))
sketch16.addConstraint(Sketcher.Constraint("DistanceY", 13, 2, 13, 1, 2.1))
sketch16.addConstraint(Sketcher.Constraint("DistanceX", 10, 2, -1, 1, 15.0))
pocket5 = doc.addObject("PartDesign::Pocket", "Pocket004")
body.addObject(pocket5)
pocket5.Profile = sketch16
pocket5.Length = 0.5

# Sketch on XZ plane
sketch17 = doc.addObject("Sketcher::SketchObject", "Sketch016")
body.addObject(sketch17)
sketch17.AttachmentSupport = (doc.XZ_Plane, [""])
sketch17.MapMode = "FlatFace"
add_polygon(sketch17, [(0.5, 3.5), (-0.5, 3.5), (-0.5, 4.8), (0.5, 4.8)])  # lines 0-3
sketch17.addConstraint(Sketcher.Constraint("Horizontal", 0))
sketch17.addConstraint(Sketcher.Constraint("Vertical", 1))
sketch17.addConstraint(Sketcher.Constraint("Horizontal", 2))
sketch17.addConstraint(Sketcher.Constraint("Vertical", 3))
sketch17.addConstraint(Sketcher.Constraint("DistanceX", 0, 2, 0, 1, 1.0))
sketch17.addConstraint(Sketcher.Constraint("DistanceY", 1, 1, 1, 2, 1.4))
sketch17.addConstraint(Sketcher.Constraint("DistanceX", 0, 2, -1, 1, 0.5))
sketch17.addConstraint(Sketcher.Constraint("DistanceY", -1, 1, 0, 2, 3.45))
pad12 = doc.addObject("PartDesign::Pad", "Pad011")
body.addObject(pad12)
pad12.Profile = sketch17
pad12.Length = 9
pad12.Midplane = True
doc.recompute()

linearpattern = doc.addObject("PartDesign::LinearPattern", "LinearPattern")
body.addObject(linearpattern)
linearpattern.Originals = [pad12]
linearpattern.Direction = (doc.X_Axis, [""])
linearpattern.Mode = "offset"
linearpattern.Offset = 12.5
linearpattern.Occurrences = 2
linearpattern.Reversed = True
body.Tip = linearpattern

# Sketch on XY plane
sketch18 = doc.addObject("Sketcher::SketchObject", "Sketch017")
body.addObject(sketch18)
sketch18.AttachmentSupport = (doc.XY_Plane, [""])
sketch18.MapMode = "FlatFace"
sketch18.AttachmentOffset = App.Placement(Vector(0, 0, 3.75), App.Rotation())
add_polygon(sketch18, [(5.7, 15.9), (4.3, 14.5), (6.6, 12.1), (7.7, 13.2), (8.2, 13.3)])  # lines 0-4
sketch18.addGeometry(Part.LineSegment(Vector(5.7, 15.9, 0), Vector(4.3, 14.5, 0)), True)  # axis
sketch18.addConstraint(Sketcher.Constraint("Coincident", 5, 1, 4, 2))
sketch18.addConstraint(Sketcher.Constraint("Coincident", 5, 2, 0, 2))
sketch18.addConstraint(Sketcher.Constraint("Perpendicular", 0, 1))
sketch18.addConstraint(Sketcher.Constraint("Perpendicular", 1, 2))
sketch18.addConstraint(Sketcher.Constraint("Perpendicular", 2, 4))
sketch18.addConstraint(Sketcher.Constraint("Angle", 0, Q("-135 deg")))
sketch18.addConstraint(Sketcher.Constraint("Angle", 3, Q("14.9997 deg")))
sketch18.addConstraint(Sketcher.Constraint("Distance", 0, 2.0))
sketch18.addConstraint(Sketcher.Constraint("Distance", 1, 3.3))
sketch18.addConstraint(Sketcher.Constraint("Distance", 3, 0.6))
sketch18.addConstraint(Sketcher.Constraint("DistanceY", -1, 1, 0, 2, 14.454))
sketch18.addConstraint(Sketcher.Constraint("DistanceX", -1, 1, 0, 2, 4.2704))
groove = doc.addObject("PartDesign::Groove", "Groove")
body.addObject(groove)
groove.Profile = sketch18
groove.ReferenceAxis = (sketch18, ["Axis0"])
groove.Angle = 360

# Sketch on XY plane
sketch19 = doc.addObject("Sketcher::SketchObject", "Sketch018")
body.addObject(sketch19)
sketch19.AttachmentSupport = (doc.XY_Plane, [""])
sketch19.MapMode = "FlatFace"
sketch19.AttachmentOffset = App.Placement(Vector(0, 0, 4.5), App.Rotation())
add_polygon(sketch19, [(0.5, 18.3), (1.9, 19.7), (0.8, 20.7), (0.6, 20.1), (-0.4, 19.1)])  # lines 0-4
sketch19.addGeometry(Part.LineSegment(Vector(0.5, 18.3, 0), Vector(1.9, 19.7, 0)), True)  # axis
sketch19.addConstraint(Sketcher.Constraint("Coincident", 5, 1, 4, 2))
sketch19.addConstraint(Sketcher.Constraint("Coincident", 5, 2, 0, 2))
sketch19.addConstraint(Sketcher.Constraint("Perpendicular", 0, 1))
sketch19.addConstraint(Sketcher.Constraint("Perpendicular", 1, 3))
sketch19.addConstraint(Sketcher.Constraint("Perpendicular", 3, 4))
sketch19.addConstraint(Sketcher.Constraint("Angle", 0, Q("45 deg")))
sketch19.addConstraint(Sketcher.Constraint("Distance", 0, 2.0))
sketch19.addConstraint(Sketcher.Constraint("Distance", 1, 1.5))
sketch19.addConstraint(Sketcher.Constraint("Distance", 2, 0.7))
sketch19.addConstraint(Sketcher.Constraint("Distance", 4, 1.15))
sketch19.addConstraint(Sketcher.Constraint("DistanceX", -1, 1, 4, 2, 0.452))
sketch19.addConstraint(Sketcher.Constraint("DistanceY", -1, 1, 0, 2, 19.6867))
groove2 = doc.addObject("PartDesign::Groove", "Groove001")
body.addObject(groove2)
groove2.Profile = sketch19
groove2.ReferenceAxis = (sketch19, ["Axis0"])
groove2.Angle = 360

# Sketch on XY plane
sketch20 = doc.addObject("Sketcher::SketchObject", "Sketch019")
body.addObject(sketch20)
sketch20.AttachmentSupport = (doc.XY_Plane, [""])
sketch20.MapMode = "FlatFace"
sketch20.AttachmentOffset = App.Placement(Vector(0, 0, 0.9), App.Rotation())
sketch20.addGeometry(Part.LineSegment(Vector(-4.2, 22.32, 0), Vector(-5.52, 21, 0)), False)
sketch20.addGeometry(Part.LineSegment(Vector(-5.52, 21, 0), Vector(-2.28, 21, 0)), False)
sketch20.addGeometry(Part.LineSegment(Vector(-2.28, 21, 0), Vector(-0.64, 19.37, 0)), False)
sketch20.addGeometry(Part.LineSegment(Vector(-0.64, 19.37, 0), Vector(0.77, 20.78, 0)), False)
sketch20.addGeometry(Part.LineSegment(Vector(0.77, 20.78, 0), Vector(-1.45, 23, 0)), False)
sketch20.addGeometry(Part.LineSegment(Vector(-1.45, 23, 0), Vector(-4.48, 23, 0)), False)
sketch20.addGeometry(Part.ArcOfCircle(Part.Circle(Vector(-4.48, 22.6, 0), Vector(0, 0, 1), 0.4), math.radians(-45), math.radians(90)), False)
sketch20.addConstraint(Sketcher.Constraint("Coincident", 0, 2, 1, 1))
sketch20.addConstraint(Sketcher.Constraint("Coincident", 1, 2, 2, 1))
sketch20.addConstraint(Sketcher.Constraint("Coincident", 2, 2, 3, 1))
sketch20.addConstraint(Sketcher.Constraint("Coincident", 3, 2, 4, 1))
sketch20.addConstraint(Sketcher.Constraint("Coincident", 4, 2, 5, 1))
sketch20.addConstraint(Sketcher.Constraint("Tangent", 5, 2, 6, 2))
sketch20.addConstraint(Sketcher.Constraint("Tangent", 6, 1, 0, 1))
sketch20.addConstraint(Sketcher.Constraint("Horizontal", 1))
sketch20.addConstraint(Sketcher.Constraint("Horizontal", 5))
sketch20.addConstraint(Sketcher.Constraint("Perpendicular", 0, 2))
sketch20.addConstraint(Sketcher.Constraint("Perpendicular", 2, 3))
sketch20.addConstraint(Sketcher.Constraint("Perpendicular", 3, 4))
sketch20.addConstraint(Sketcher.Constraint("Radius", 6, 0.4))
sketch20.addConstraint(Sketcher.Constraint("Angle", 0, Q("-135 deg")))
sketch20.addConstraint(Sketcher.Constraint("Distance", 3, 2.0))
sketch20.addConstraint(Sketcher.Constraint("DistanceY", -1, 1, 0, 2, 21.0))
sketch20.addConstraint(Sketcher.Constraint("DistanceY", -1, 1, 4, 2, 23.0))
sketch20.addConstraint(Sketcher.Constraint("DistanceX", 1, 1, 1, 2, 3.2424))
sketch20.addConstraint(Sketcher.Constraint("DistanceX", 0, 2, -1, 1, 5.518))
sketch20.addConstraint(Sketcher.Constraint("DistanceX", 2, 2, -1, 1, 0.644))
pocket6 = doc.addObject("PartDesign::Pocket", "Pocket005")
body.addObject(pocket6)
pocket6.Profile = sketch20
pocket6.Length = 5.8
pocket6.Reversed = True

doc.recompute()
